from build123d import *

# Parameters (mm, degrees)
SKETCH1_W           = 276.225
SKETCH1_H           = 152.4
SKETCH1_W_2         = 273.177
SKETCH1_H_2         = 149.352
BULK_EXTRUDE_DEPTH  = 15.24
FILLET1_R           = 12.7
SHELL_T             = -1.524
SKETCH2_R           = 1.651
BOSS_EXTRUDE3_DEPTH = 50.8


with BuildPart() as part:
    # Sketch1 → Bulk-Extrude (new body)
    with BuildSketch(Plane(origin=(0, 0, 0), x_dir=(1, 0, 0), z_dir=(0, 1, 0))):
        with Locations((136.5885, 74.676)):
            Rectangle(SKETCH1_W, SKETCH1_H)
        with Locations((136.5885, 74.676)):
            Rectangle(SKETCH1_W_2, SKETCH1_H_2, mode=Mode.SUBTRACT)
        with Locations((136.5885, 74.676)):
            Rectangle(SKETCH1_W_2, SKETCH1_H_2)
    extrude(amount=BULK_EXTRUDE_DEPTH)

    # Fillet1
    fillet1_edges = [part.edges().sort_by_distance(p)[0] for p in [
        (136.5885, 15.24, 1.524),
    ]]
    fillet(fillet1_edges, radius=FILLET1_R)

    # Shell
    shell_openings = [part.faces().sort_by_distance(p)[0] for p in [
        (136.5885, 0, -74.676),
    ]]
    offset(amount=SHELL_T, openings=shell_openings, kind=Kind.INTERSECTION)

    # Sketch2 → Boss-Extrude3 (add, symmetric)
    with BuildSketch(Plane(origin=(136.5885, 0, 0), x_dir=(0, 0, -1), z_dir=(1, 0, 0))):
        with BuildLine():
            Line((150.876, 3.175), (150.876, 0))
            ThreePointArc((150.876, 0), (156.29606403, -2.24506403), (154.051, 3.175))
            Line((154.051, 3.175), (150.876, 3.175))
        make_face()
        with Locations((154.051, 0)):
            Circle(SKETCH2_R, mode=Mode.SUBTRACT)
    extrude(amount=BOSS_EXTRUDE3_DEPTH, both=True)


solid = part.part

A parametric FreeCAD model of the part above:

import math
import FreeCAD as App
import Part
import Sketcher
Q = App.Units.Quantity


def edges_at(feature, points):
    """Names of the edges that pass closest to the given points."""
    edges = feature.Shape.Edges
    near = lambda p: min(range(len(edges)), key=lambda i: edges[i].distToShape(Part.Vertex(*p))[0])
    return sorted({f"Edge{near(p) + 1}" for p in points})


def faces_at(feature, points):
    """Names of the faces that lie closest to the given points."""
    faces = feature.Shape.Faces
    near = lambda p: min(range(len(faces)), key=lambda i: faces[i].distToShape(Part.Vertex(*p))[0])
    return sorted({f"Face{near(p) + 1}" for p in points})


def add_polygon(sketch, points):
    """Adds a closed chain of lines whose ends are joined by coincident constraints."""
    first, n = sketch.GeometryCount, len(points)
    for a, b in zip(points, points[1:] + points[:1]):
        sketch.addGeometry(Part.LineSegment(App.Vector(*a, 0), App.Vector(*b, 0)), False)
    for i in range(n):
        sketch.addConstraint(Sketcher.Constraint("Coincident", first + i, 2, first + (i + 1) % n, 1))

doc = App.newDocument("Part")
body = doc.addObject("PartDesign::Body", "Body")

# Sketch on XZ plane
sketch1 = body.newObject("Sketcher::SketchObject", "Sketch")
sketch1.AttachmentSupport = (doc.getObject("XZ_Plane"), [""])
sketch1.MapMode = "FlatFace"
add_polygon(sketch1, [(-2, -151), (-2, 2), (275, 2), (275, -151)])  # lines 0-3
sketch1.addConstraint([
    Sketcher.Constraint("Vertical", 0),
    Sketcher.Constraint("Horizontal", 1),
    Sketcher.Constraint("Vertical", 2),
    Sketcher.Constraint("Horizontal", 3),
    Sketcher.Constraint("DistanceY", 0, 1, 0, 2, Q("6 in")),
    Sketcher.Constraint("DistanceX", 1, 1, 1, 2, Q("10.875 in")),
    Sketcher.Constraint("DistanceX", 0, 2, -1, 1, Q("0.06 in")),
    Sketcher.Constraint("DistanceY", -1, 1, 0, 2, Q("0.06 in")),
])
pad1 = body.newObject("PartDesign::Pad", "Pad")
pad1.Profile = sketch1
pad1.Length = Q("0.6 in")
pad1.Reversed = True
doc.recompute()

fillet = body.newObject("PartDesign::Fillet", "Fillet")
fillet.Base = (pad1, edges_at(pad1, [(136.589, 15.24, 1.524)]))
fillet.Radius = Q("0.5 in")
doc.recompute()

thickness = body.newObject("PartDesign::Thickness", "Thickness")
thickness.Base = (fillet, faces_at(fillet, [(136.589, 0, -74.676)]))
thickness.Value = Q("0.06 in")
thickness.Reversed = True
thickness.Join = "Intersection"

# Sketch on YZ plane
sketch2 = body.newObject("Sketcher::SketchObject", "Sketch001")
sketch2.AttachmentSupport = (doc.getObject("YZ_Plane"), [""])
sketch2.MapMode = "FlatFace"
sketch2.AttachmentOffset = App.Placement(App.Vector(0, 0, 5.3775 * 25.4), App.Rotation())
sketch2.addGeometry([
    Part.LineSegment(App.Vector(3.2, -150.9, 0), App.Vector(0, -150.9, 0)),
    Part.ArcOfCircle(Part.Circle(App.Vector(0, -154.1, 0), App.Vector(0, 0, 1), 3.2), math.radians(90), math.radians(360)),
    Part.LineSegment(App.Vector(3.2, -154.1, 0), App.Vector(3.2, -150.9, 0)),
    Part.Circle(App.Vector(0, -154.1, 0), App.Vector(0, 0, 1), 1.7),
], False)
sketch2.addConstraint([
    Sketcher.Constraint("Tangent", 0, 2, 1, 1),
    Sketcher.Constraint("Tangent", 1, 2, 2, 1),
    Sketcher.Constraint("Coincident", 2, 2, 0, 1),
    Sketcher.Constraint("Horizontal", 0),
    Sketcher.Constraint("Vertical", 2),
    Sketcher.Constraint("Coincident", 3, 3, 1, 3),
    Sketcher.Constraint("PointOnObject", 1, 3, -2),
    Sketcher.Constraint("Diameter", 3, Q("0.13 in")),
    Sketcher.Constraint("Radius", 1, Q("0.125 in")),
    Sketcher.Constraint("DistanceY", 0, 2, -1, 1, Q("5.94 in")),
])
pad2 = body.newObject("PartDesign::Pad", "Pad001")
pad2.Profile = sketch2
pad2.Length = Q("4 in")
pad2.Midplane = True

doc.recompute()
